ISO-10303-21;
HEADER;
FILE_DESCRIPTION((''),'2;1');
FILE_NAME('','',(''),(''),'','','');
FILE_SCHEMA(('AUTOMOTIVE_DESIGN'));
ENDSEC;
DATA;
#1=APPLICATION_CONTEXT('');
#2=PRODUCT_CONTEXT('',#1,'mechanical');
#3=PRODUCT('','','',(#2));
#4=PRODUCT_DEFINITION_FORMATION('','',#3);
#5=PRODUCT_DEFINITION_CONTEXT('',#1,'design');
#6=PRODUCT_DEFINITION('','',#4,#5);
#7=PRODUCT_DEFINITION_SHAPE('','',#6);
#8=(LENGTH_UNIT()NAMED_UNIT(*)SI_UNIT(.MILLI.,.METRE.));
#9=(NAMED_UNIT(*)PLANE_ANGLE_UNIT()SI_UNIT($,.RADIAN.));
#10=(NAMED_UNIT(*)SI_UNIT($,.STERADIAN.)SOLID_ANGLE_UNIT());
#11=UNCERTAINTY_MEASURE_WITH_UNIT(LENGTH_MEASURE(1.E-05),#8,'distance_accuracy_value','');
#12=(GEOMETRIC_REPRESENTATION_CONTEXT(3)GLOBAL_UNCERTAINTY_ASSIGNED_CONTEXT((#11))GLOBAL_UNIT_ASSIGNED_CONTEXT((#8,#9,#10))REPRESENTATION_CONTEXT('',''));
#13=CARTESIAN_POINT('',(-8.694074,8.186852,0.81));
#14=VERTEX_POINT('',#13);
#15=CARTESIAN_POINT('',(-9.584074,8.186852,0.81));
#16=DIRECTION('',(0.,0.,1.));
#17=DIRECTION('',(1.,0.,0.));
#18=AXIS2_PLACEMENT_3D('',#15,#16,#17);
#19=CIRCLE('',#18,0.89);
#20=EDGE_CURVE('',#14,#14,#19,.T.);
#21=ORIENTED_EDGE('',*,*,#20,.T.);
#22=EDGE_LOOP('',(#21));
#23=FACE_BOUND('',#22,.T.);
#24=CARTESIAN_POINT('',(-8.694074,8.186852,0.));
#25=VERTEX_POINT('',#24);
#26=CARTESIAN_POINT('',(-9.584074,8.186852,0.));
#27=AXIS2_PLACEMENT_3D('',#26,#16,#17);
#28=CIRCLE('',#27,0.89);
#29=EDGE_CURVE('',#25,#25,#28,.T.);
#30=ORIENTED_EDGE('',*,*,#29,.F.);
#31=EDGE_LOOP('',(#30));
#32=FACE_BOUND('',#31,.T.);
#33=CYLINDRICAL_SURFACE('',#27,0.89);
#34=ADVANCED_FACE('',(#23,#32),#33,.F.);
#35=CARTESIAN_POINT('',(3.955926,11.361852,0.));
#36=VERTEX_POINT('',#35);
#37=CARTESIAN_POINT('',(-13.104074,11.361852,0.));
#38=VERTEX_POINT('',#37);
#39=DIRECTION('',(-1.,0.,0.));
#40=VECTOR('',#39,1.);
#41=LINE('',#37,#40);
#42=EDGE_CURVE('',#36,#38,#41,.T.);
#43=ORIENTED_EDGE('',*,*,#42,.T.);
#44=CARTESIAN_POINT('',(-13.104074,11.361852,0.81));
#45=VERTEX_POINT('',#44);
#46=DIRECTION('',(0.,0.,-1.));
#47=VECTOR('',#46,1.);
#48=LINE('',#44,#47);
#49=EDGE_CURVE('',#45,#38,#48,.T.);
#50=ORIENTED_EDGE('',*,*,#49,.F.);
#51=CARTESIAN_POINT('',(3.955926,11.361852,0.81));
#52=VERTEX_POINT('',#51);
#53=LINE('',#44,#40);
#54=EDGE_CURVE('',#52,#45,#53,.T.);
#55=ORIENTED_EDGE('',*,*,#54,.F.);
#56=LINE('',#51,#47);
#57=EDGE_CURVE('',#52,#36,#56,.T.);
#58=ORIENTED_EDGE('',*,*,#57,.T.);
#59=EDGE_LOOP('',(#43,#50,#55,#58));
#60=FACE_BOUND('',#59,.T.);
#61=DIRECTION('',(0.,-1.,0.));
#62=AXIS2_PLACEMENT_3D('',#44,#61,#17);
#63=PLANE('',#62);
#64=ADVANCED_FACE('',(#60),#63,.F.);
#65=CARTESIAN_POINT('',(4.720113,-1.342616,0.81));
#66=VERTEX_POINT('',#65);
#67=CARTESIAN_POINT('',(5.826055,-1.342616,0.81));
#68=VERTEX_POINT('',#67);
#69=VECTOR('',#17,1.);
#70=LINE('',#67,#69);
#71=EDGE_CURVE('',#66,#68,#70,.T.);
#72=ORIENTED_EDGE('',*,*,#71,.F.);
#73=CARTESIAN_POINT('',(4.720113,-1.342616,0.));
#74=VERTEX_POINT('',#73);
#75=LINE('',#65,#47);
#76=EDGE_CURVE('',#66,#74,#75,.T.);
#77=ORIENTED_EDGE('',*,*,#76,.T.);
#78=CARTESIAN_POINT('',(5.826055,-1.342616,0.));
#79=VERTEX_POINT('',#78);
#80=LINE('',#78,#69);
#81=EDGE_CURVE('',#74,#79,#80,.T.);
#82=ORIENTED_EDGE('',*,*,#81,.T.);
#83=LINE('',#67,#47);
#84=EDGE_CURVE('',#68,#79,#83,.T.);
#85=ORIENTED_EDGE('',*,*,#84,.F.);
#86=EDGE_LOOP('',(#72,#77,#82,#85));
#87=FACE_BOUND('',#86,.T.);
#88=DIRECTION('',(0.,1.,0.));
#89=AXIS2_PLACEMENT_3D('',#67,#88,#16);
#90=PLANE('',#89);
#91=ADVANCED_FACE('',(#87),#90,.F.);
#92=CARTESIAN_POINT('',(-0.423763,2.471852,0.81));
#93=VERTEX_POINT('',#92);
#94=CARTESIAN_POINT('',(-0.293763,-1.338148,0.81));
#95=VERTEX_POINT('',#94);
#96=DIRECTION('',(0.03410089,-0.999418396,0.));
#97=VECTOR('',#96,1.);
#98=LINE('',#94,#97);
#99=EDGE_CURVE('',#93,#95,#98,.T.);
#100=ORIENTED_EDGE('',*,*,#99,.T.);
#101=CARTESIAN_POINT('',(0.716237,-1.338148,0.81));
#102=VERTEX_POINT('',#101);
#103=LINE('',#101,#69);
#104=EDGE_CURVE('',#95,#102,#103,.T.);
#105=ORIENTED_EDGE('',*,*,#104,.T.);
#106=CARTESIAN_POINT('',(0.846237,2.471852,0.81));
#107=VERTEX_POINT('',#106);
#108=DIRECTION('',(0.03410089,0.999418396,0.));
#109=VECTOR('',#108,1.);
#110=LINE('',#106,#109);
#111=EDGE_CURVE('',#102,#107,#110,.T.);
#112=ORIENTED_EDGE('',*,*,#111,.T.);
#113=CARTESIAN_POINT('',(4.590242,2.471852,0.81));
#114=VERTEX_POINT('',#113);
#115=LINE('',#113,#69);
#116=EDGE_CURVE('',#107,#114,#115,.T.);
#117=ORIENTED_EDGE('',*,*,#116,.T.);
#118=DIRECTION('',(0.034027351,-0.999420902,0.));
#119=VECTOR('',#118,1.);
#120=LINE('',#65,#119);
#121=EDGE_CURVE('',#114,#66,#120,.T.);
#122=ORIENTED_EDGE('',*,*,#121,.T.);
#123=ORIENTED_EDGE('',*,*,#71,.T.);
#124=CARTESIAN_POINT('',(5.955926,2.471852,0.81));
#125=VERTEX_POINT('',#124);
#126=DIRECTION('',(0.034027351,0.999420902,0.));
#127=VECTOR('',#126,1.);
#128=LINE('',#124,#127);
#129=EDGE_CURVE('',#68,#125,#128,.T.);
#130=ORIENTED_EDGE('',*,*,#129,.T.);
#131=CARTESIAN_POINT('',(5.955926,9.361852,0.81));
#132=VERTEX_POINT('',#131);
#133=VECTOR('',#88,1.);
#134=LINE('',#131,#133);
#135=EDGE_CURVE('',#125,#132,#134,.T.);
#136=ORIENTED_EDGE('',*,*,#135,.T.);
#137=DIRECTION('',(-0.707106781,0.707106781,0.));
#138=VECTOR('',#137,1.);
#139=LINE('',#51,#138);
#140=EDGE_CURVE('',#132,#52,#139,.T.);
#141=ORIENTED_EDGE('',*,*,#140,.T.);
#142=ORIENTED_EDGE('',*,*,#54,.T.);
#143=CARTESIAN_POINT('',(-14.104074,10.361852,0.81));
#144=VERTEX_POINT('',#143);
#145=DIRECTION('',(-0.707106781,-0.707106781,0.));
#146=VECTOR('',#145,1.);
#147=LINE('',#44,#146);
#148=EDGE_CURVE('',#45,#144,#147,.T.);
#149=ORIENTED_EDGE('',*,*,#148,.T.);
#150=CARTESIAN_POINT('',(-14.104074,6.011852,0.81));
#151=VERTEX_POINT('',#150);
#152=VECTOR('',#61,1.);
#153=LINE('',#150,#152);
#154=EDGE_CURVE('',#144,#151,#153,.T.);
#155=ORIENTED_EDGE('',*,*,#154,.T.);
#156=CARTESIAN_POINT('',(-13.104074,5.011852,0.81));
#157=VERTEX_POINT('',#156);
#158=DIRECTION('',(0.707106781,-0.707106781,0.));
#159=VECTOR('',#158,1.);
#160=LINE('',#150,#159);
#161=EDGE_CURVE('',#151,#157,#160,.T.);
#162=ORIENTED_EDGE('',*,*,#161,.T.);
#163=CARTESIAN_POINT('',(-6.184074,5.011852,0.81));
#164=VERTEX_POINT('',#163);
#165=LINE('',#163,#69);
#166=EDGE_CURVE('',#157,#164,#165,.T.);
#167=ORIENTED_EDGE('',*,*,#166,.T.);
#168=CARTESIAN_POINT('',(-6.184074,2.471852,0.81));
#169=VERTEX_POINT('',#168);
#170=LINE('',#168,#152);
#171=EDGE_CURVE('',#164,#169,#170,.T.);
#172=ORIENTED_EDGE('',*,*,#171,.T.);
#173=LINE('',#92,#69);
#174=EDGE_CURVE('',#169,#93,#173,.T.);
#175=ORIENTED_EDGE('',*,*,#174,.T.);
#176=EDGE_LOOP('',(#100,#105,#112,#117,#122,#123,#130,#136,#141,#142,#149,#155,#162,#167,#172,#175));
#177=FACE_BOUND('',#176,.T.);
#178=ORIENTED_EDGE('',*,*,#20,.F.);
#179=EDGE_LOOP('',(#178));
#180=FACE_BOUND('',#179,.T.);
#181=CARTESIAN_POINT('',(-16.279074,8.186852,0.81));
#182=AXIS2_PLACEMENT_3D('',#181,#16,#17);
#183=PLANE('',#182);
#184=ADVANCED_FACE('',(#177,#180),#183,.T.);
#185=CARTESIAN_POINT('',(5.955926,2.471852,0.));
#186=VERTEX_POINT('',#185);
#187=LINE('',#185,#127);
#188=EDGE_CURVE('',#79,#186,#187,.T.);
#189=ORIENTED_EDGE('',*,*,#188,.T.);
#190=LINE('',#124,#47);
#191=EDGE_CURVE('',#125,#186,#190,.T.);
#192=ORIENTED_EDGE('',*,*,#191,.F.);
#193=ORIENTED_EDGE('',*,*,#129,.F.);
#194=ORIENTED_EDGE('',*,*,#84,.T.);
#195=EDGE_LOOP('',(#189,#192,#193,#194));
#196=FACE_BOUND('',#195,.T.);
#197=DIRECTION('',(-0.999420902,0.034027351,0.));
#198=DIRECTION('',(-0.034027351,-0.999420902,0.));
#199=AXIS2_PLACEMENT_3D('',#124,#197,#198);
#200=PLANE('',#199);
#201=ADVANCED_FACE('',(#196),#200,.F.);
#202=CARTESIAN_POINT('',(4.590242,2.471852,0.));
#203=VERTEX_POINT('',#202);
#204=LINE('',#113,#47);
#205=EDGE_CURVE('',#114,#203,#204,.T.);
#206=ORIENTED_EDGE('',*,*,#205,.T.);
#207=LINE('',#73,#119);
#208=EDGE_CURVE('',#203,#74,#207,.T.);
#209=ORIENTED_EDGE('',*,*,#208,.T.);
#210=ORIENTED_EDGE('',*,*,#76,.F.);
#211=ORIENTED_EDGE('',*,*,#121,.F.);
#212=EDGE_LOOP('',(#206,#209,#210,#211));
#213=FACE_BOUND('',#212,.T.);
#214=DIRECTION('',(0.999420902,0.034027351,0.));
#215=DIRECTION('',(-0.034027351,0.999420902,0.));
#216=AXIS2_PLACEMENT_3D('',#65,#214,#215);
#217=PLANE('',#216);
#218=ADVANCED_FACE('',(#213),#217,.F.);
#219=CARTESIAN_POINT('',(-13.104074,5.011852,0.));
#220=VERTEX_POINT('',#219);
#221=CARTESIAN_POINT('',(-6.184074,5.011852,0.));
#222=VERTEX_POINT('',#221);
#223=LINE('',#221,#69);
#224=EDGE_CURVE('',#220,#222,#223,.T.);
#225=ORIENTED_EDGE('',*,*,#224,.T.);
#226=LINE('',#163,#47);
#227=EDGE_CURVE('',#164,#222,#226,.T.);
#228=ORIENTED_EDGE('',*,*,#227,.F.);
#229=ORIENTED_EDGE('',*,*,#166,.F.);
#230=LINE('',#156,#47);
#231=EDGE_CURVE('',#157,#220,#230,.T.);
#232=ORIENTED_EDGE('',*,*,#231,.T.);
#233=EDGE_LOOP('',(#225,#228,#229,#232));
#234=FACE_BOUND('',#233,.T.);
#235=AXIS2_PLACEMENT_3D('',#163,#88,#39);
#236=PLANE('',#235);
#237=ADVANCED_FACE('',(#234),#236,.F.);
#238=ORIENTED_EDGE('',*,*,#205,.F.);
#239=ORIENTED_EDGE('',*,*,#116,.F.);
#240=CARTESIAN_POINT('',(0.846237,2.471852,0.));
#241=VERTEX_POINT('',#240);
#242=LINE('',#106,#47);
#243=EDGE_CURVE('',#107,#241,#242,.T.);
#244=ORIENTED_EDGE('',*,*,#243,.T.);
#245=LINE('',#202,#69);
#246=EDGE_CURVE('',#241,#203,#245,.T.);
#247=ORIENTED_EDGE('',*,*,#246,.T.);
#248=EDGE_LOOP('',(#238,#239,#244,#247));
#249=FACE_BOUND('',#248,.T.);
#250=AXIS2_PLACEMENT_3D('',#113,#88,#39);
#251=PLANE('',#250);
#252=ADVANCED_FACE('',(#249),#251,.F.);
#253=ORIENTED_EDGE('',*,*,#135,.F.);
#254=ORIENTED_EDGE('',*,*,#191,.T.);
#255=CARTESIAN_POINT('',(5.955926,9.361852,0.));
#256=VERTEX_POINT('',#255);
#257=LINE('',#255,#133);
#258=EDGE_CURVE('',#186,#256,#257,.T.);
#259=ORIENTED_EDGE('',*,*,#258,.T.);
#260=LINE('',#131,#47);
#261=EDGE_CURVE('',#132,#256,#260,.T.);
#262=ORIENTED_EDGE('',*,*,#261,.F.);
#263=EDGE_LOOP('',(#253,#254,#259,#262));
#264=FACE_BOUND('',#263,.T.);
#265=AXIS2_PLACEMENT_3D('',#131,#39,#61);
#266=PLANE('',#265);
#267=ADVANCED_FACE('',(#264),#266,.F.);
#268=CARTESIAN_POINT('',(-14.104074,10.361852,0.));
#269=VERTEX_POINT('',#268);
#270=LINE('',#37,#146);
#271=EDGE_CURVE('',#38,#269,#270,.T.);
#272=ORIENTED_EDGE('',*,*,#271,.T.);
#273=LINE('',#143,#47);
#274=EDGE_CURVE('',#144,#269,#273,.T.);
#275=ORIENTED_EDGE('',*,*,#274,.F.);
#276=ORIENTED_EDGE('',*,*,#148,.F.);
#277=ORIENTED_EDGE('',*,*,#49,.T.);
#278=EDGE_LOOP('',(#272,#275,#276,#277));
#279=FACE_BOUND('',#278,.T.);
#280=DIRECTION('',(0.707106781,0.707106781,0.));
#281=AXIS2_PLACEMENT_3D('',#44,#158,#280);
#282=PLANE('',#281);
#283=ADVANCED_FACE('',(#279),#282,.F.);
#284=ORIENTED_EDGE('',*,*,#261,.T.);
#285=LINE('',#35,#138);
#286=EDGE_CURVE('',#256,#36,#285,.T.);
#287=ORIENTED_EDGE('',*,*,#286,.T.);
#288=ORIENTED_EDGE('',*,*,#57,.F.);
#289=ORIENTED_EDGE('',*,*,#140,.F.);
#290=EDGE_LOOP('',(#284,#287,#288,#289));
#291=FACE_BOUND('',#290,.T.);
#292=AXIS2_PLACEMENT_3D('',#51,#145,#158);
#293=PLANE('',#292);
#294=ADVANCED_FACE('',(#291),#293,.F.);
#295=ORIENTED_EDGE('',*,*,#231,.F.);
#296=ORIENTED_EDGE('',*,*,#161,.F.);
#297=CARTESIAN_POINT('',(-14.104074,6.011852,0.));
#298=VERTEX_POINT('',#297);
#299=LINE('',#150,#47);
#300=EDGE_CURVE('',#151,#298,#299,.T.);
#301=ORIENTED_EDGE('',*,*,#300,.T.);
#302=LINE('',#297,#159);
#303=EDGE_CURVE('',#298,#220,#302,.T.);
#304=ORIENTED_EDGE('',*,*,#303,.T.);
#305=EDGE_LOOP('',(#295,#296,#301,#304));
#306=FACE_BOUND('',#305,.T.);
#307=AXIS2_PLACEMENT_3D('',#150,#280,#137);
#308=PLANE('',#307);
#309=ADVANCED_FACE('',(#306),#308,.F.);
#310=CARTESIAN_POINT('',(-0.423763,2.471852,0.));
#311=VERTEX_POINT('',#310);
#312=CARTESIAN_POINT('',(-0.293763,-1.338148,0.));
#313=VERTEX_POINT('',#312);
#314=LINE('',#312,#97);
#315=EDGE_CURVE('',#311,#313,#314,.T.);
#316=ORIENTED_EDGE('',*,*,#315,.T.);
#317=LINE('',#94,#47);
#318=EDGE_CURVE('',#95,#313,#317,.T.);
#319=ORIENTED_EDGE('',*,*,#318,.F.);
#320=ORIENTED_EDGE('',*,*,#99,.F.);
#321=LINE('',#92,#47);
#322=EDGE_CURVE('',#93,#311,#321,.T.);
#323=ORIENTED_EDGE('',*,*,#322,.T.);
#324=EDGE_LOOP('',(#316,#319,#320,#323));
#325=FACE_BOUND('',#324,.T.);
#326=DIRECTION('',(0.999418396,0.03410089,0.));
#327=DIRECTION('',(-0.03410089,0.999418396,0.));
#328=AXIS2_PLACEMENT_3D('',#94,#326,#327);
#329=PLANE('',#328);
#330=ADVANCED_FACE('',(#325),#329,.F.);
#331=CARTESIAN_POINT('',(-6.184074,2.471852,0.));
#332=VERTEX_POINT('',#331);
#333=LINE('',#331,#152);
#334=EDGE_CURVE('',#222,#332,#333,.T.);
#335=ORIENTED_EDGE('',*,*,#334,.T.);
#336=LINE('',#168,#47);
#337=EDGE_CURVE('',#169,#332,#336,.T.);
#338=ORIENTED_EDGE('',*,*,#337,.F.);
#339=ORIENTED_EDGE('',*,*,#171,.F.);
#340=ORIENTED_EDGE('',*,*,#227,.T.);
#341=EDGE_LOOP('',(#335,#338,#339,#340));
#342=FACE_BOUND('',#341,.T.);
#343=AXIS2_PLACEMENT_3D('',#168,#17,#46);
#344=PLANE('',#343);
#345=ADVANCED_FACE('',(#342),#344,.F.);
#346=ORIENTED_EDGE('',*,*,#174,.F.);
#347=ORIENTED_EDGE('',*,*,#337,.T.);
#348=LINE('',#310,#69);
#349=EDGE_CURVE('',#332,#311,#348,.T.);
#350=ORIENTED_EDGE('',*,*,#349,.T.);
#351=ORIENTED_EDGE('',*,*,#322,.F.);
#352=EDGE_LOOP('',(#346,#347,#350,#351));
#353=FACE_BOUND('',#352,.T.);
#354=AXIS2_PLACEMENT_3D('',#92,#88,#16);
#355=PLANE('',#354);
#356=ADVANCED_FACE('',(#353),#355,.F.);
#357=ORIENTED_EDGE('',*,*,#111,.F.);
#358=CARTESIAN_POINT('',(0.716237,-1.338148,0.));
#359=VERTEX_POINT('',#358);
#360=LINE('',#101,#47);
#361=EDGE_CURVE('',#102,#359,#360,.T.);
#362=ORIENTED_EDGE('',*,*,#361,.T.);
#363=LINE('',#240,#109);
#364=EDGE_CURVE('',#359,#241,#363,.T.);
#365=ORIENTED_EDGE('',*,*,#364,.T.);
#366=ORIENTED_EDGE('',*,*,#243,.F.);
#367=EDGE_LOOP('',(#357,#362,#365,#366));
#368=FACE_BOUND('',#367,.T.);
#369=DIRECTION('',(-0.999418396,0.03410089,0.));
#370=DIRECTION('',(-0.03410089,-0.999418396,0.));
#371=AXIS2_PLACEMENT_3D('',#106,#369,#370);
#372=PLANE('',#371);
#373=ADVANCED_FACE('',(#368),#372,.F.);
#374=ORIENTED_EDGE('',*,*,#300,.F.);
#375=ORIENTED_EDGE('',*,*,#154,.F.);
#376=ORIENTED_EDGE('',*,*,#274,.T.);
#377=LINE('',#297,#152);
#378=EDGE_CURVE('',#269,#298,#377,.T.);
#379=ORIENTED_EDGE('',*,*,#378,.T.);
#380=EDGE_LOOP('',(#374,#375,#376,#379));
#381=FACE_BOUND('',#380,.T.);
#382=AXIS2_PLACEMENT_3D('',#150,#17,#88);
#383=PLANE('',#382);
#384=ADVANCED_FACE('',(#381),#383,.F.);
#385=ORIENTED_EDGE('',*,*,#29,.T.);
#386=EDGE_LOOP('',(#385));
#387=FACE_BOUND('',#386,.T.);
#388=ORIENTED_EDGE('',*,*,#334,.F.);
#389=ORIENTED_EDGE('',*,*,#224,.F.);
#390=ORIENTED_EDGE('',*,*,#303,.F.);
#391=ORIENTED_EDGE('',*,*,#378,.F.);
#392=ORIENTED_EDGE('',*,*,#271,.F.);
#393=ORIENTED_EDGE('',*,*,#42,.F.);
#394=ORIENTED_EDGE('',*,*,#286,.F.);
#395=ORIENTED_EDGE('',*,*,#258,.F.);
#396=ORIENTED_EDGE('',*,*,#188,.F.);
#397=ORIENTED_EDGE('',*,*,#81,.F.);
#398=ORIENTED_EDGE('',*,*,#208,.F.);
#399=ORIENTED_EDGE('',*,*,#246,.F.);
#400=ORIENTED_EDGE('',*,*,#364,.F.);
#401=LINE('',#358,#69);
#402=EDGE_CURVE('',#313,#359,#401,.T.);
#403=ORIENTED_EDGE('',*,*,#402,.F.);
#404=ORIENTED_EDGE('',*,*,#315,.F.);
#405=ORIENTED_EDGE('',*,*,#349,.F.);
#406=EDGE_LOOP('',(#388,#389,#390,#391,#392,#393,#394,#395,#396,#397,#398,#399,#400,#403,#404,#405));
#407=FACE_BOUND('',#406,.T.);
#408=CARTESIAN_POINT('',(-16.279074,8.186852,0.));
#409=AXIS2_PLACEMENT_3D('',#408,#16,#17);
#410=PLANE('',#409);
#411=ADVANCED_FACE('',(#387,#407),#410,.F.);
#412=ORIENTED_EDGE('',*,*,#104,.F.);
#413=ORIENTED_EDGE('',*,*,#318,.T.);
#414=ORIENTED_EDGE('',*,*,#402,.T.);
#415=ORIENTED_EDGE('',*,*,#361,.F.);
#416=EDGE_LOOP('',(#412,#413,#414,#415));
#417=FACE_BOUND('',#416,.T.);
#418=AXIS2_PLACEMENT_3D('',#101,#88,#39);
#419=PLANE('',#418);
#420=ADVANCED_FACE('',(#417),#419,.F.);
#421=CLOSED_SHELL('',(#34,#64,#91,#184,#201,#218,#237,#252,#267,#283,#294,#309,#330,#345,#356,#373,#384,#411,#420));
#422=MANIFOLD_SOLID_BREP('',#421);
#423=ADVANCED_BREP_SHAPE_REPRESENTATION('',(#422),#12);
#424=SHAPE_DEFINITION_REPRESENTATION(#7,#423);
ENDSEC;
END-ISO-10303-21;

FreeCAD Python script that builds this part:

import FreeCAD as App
import Part
import Sketcher
Q = App.Units.Quantity

doc = App.newDocument("Part")
body = doc.addObject("PartDesign::Body", "Body")

# Sketch on XY plane
sketch1 = body.newObject("Sketcher::SketchObject", "Sketch")
sketch1.AttachmentSupport = (doc.getObject("XY_Plane"), [""])
sketch1.MapMode = "FlatFace"
sketch1.addGeometry([
    Part.LineSegment(App.Vector(3.955926, 11.361852, 0), App.Vector(-13.104074, 11.361852, 0)),  # 0
    Part.LineSegment(App.Vector(-13.104074, 11.361852, 0), App.Vector(-14.104074, 10.361852, 0)),  # 1
    Part.LineSegment(App.Vector(-14.104074, 10.361852, 0), App.Vector(-14.104074, 6.011852, 0)),  # 2
    Part.LineSegment(App.Vector(-14.104074, 6.011852, 0), App.Vector(-13.104074, 5.011852, 0)),  # 3
    Part.LineSegment(App.Vector(-13.104074, 5.011852, 0), App.Vector(-6.184074, 5.011852, 0)),  # 4
    Part.LineSegment(App.Vector(-6.184074, 5.011852, 0), App.Vector(-6.184074, 2.471852, 0)),  # 5
    Part.LineSegment(App.Vector(-6.184074, 2.471852, 0), App.Vector(-0.423763, 2.471852, 0)),  # 6
    Part.LineSegment(App.Vector(-0.423763, 2.471852, 0), App.Vector(-0.293763, -1.338148, 0)),  # 7
    Part.LineSegment(App.Vector(-0.293763, -1.338148, 0), App.Vector(0.716237, -1.338148, 0)),  # 8
    Part.LineSegment(App.Vector(0.716237, -1.338148, 0), App.Vector(0.846237, 2.471852, 0)),  # 9
    Part.LineSegment(App.Vector(0.846237, 2.471852, 0), App.Vector(4.590242, 2.471852, 0)),  # 10
    Part.LineSegment(App.Vector(4.590242, 2.471852, 0), App.Vector(4.720113, -1.342616, 0)),  # 11
    Part.LineSegment(App.Vector(4.720113, -1.342616, 0), App.Vector(5.826055, -1.342616, 0)),  # 12
    Part.LineSegment(App.Vector(5.826055, -1.342616, 0), App.Vector(5.955926, 2.471852, 0)),  # 13
    Part.LineSegment(App.Vector(5.955926, 2.471852, 0), App.Vector(5.955926, 9.361852, 0)),  # 14
    Part.LineSegment(App.Vector(5.955926, 9.361852, 0), App.Vector(3.955926, 11.361852, 0)),  # 15
], False)
sketch1.addConstraint([
    Sketcher.Constraint("Coincident", 0, 2, 1, 1),
    Sketcher.Constraint("Coincident", 1, 2, 2, 1),
    Sketcher.Constraint("Coincident", 2, 2, 3, 1),
    Sketcher.Constraint("Coincident", 3, 2, 4, 1),
    Sketcher.Constraint("Coincident", 4, 2, 5, 1),
    Sketcher.Constraint("Coincident", 5, 2, 6, 1),
    Sketcher.Constraint("Coincident", 6, 2, 7, 1),
    Sketcher.Constraint("Coincident", 7, 2, 8, 1),
    Sketcher.Constraint("Coincident", 8, 2, 9, 1),
    Sketcher.Constraint("Coincident", 9, 2, 10, 1),
    Sketcher.Constraint("Coincident", 10, 2, 11, 1),
    Sketcher.Constraint("Coincident", 11, 2, 12, 1),
    Sketcher.Constraint("Coincident", 12, 2, 13, 1),
    Sketcher.Constraint("Coincident", 13, 2, 14, 1),
    Sketcher.Constraint("Coincident", 14, 2, 15, 1),
    Sketcher.Constraint("Coincident", 15, 2, 0, 1),
    Sketcher.Constraint("Horizontal", 0),
    Sketcher.Constraint("Vertical", 2),
    Sketcher.Constraint("Horizontal", 4),
    Sketcher.Constraint("Vertical", 5),
    Sketcher.Constraint("Horizontal", 6),
    Sketcher.Constraint("Horizontal", 8),
    Sketcher.Constraint("Horizontal", 10),
    Sketcher.Constraint("Horizontal", 12),
    Sketcher.Constraint("Vertical", 14),
    Sketcher.Constraint("Perpendicular", 1, 3),
    Sketcher.Constraint("Parallel", 3, 15),
    Sketcher.Constraint("Horizontal", 6, 2, 9, 2),
    Sketcher.Constraint("Horizontal", 10, 2, 13, 2),
    Sketcher.Constraint("Vertical", 0, 2, 3, 2),
    Sketcher.Constraint("Equal", 1, 3),
    Sketcher.Constraint("Equal", 7, 9),
    Sketcher.Constraint("Equal", 11, 13),
    Sketcher.Constraint("DistanceY", 5, 2, 5, 1, Q("0.1 in")),
    Sketcher.Constraint("Angle", 11, Q("-88.05 deg")),
    Sketcher.Constraint("DistanceY", 3, 2, 0, 2, Q("0.25 in")),
    Sketcher.Constraint("DistanceY", 7, 2, 6, 2, Q("0.15 in")),
    Sketcher.Constraint("DistanceX", 6, 2, 9, 2, Q("0.05 in")),
    Sketcher.Constraint("DistanceX", 0, 2, 0, 1, Q("17.06 mm")),
    Sketcher.Constraint("DistanceX", 4, 1, 4, 2, Q("6.92 mm")),
    Sketcher.Constraint("DistanceX", 8, 1, 8, 2, Q("1.01 mm")),
    Sketcher.Constraint("DistanceY", 2, 2, 2, 1, Q("4.35 mm")),
    Sketcher.Constraint("DistanceY", 14, 1, 14, 2, Q("6.89 mm")),
    Sketcher.Constraint("DistanceX", 6, 1, 6, 2, Q("5.760311 mm")),
    Sketcher.Constraint("DistanceX", 12, 1, 12, 2, Q("1.105941 mm")),
    Sketcher.Constraint("Distance", 11, Q("3.816678 mm")),
    Sketcher.Constraint("DistanceY", -1, 1, 0, 2, Q("11.361852 mm")),
    Sketcher.Constraint("DistanceX", -1, 1, 10, 2, Q("4.590242 mm")),
])
pad1 = body.newObject("PartDesign::Pad", "Pad")
pad1.Profile = sketch1
pad1.Length = 0.81

# Sketch on XY plane
sketch2 = body.newObject("Sketcher::SketchObject", "Sketch001")
sketch2.AttachmentSupport = (doc.getObject("XY_Plane"), [""])
sketch2.MapMode = "FlatFace"
sketch2.AttachmentOffset = App.Placement(App.Vector(0, 0, 0.81), App.Rotation())
sketch2.addGeometry(Part.Circle(App.Vector(-9.584074, 8.186852, 0), App.Vector(0, 0, 1), 0.89), False)
sketch2.addConstraint([
    Sketcher.Constraint("Diameter", 0, Q("1.78 mm")),
    Sketcher.Constraint("DistanceY", -1, 1, 0, 3, Q("8.186852 mm")),
    Sketcher.Constraint("DistanceX", 0, 3, -1, 1, Q("9.584074 mm")),
])
pocket1 = body.newObject("PartDesign::Pocket", "Pocket")
pocket1.Profile = sketch2
pocket1.Length = 0.81

doc.recompute()
